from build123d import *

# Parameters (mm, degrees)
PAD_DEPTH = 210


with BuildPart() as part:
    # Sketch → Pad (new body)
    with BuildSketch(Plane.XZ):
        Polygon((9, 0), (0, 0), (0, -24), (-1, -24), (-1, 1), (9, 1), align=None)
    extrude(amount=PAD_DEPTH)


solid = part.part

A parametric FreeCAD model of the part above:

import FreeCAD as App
import Part
import Sketcher

V = App.Vector

doc = App.newDocument("Part")
params = doc.addObject("Spreadsheet::Sheet", "Params")
for row, (alias, value) in enumerate([
    ("sketch1_width", "9 mm"),
    ("sketch1_width2", "10 mm"),
    ("sketch1_height", "25 mm"),
    ("pad1_length", "210 mm"),
], start=1):
    params.set(f"A{row}", alias)
    params.set(f"B{row}", "=" + value)
    params.setAlias(f"B{row}", alias)

body = doc.addObject("PartDesign::Body", "Body")

# Sketch on XZ plane
sketch1 = body.newObject("Sketcher::SketchObject", "Sketch")
sketch1.AttachmentSupport = (doc.getObject("XZ_Plane"), [""])
sketch1.MapMode = "FlatFace"
sketch1.addGeometry(Part.LineSegment(V(0, 0, 0), V(9, 0, 0)), False)
sketch1.addGeometry(Part.LineSegment(V(9, 0, 0), V(9, 1, 0)), False)
sketch1.addGeometry(Part.LineSegment(V(9, 1, 0), V(-1, 1, 0)), False)
sketch1.addGeometry(Part.LineSegment(V(-1, 1, 0), V(-1, -24, 0)), False)
sketch1.addGeometry(Part.LineSegment(V(-1, -24, 0), V(0, -24, 0)), False)
sketch1.addGeometry(Part.LineSegment(V(0, -24, 0), V(0, 0, 0)), False)
sketch1.addConstraint(Sketcher.Constraint("Coincident", 0, 2, 1, 1))
sketch1.addConstraint(Sketcher.Constraint("Coincident", 1, 2, 2, 1))
sketch1.addConstraint(Sketcher.Constraint("Coincident", 2, 2, 3, 1))
sketch1.addConstraint(Sketcher.Constraint("Coincident", 3, 2, 4, 1))
sketch1.addConstraint(Sketcher.Constraint("Coincident", 4, 2, 5, 1))
sketch1.addConstraint(Sketcher.Constraint("Coincident", 5, 2, 0, 1))
sketch1.addConstraint(Sketcher.Constraint("Horizontal", 0))
sketch1.addConstraint(Sketcher.Constraint("Vertical", 1))
sketch1.addConstraint(Sketcher.Constraint("Horizontal", 2))
sketch1.addConstraint(Sketcher.Constraint("Vertical", 3))
sketch1.addConstraint(Sketcher.Constraint("Horizontal", 4))
sketch1.addConstraint(Sketcher.Constraint("Vertical", 5))
sketch1.addConstraint(Sketcher.Constraint("Coincident", 5, 2, -1, 1))
sketch1.addConstraint(Sketcher.Constraint("Equal", 4, 1))
sketch1.addConstraint(Sketcher.Constraint("DistanceX", 0, 1, 0, 2, 9.0))
sketch1.addConstraint(Sketcher.Constraint("DistanceX", 2, 2, 2, 1, 10.0))
sketch1.addConstraint(Sketcher.Constraint("DistanceY", 3, 2, 3, 1, 25.0))
sketch1.setExpression("Constraints[14]", "Params.sketch1_width")
sketch1.setExpression("Constraints[15]", "Params.sketch1_width2")
sketch1.setExpression("Constraints[16]", "Params.sketch1_height")
pad1 = body.newObject("PartDesign::Pad", "Pad")
pad1.Profile = sketch1
pad1.setExpression("Length", "Params.pad1_length")

doc.recompute()
